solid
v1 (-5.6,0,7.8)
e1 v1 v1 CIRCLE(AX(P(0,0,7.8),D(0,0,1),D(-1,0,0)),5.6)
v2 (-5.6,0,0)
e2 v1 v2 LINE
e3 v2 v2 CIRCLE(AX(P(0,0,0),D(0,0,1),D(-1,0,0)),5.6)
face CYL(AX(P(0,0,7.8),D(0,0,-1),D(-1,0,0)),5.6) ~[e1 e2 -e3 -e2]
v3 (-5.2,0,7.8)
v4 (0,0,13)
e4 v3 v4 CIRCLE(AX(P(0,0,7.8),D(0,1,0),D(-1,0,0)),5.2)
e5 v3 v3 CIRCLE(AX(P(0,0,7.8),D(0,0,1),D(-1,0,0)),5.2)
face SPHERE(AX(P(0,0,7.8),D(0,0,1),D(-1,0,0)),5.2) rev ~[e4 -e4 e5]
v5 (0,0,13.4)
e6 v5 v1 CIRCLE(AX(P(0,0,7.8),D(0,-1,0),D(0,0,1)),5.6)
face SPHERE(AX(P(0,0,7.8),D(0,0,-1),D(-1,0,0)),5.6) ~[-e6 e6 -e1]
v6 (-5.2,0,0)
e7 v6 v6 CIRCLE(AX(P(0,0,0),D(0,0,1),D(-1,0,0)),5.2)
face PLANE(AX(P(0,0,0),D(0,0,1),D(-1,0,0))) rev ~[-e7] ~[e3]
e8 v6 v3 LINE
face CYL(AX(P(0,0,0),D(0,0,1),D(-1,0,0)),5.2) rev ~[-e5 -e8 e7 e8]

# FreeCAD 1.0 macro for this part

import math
import FreeCAD as App
import Part
import Sketcher

V = App.Vector
Q = App.Units.Quantity

doc = App.newDocument("Part")
body = doc.addObject("PartDesign::Body", "Body")

sketch1 = body.newObject("Sketcher::SketchObject", "Sketch")
sketch1.AttachmentSupport = (doc.getObject("XZ_Plane"), [""])
sketch1.MapMode = "FlatFace"
sketch1.addGeometry([
    Part.LineSegment(V(-5.6, 0, 0), V(-5.2, 0, 0)),
    Part.LineSegment(V(-5.2, 0, 0), V(-5.2, 7.8, 0)),
    Part.ArcOfCircle(Part.Circle(V(0, 7.8, 0), V(0, 0, 1), 5.2), math.radians(90), math.radians(180)),
    Part.LineSegment(V(0, 13, 0), V(0, 13.4, 0)),
    Part.ArcOfCircle(Part.Circle(V(0, 7.8, 0), V(0, 0, 1), 5.6), math.radians(90), math.radians(180)),
    Part.LineSegment(V(-5.6, 7.8, 0), V(-5.6, 0, 0)),
], False)
sketch1.addConstraint([
    Sketcher.Constraint("Coincident", 0, 2, 1, 1),
    Sketcher.Constraint("Tangent", 1, 2, 2, 2),
    Sketcher.Constraint("Coincident", 2, 1, 3, 1),
    Sketcher.Constraint("Coincident", 3, 2, 4, 1),
    Sketcher.Constraint("Tangent", 4, 2, 5, 1),
    Sketcher.Constraint("Coincident", 5, 2, 0, 1),
    Sketcher.Constraint("Horizontal", 0),
    Sketcher.Constraint("Vertical", 1),
    Sketcher.Constraint("Vertical", 3),
    Sketcher.Constraint("Vertical", 5),
    Sketcher.Constraint("Coincident", 4, 3, 2, 3),
    Sketcher.Constraint("PointOnObject", 2, 3, -2),
    Sketcher.Constraint("PointOnObject", 0, 2, -1),
    Sketcher.Constraint("PointOnObject", 2, 1, -2),
    Sketcher.Constraint("Radius", 2, Q("5.2 mm")),
    Sketcher.Constraint("Radius", 4, Q("5.6 mm")),
    Sketcher.Constraint("DistanceY", 1, 1, 1, 2, Q("7.8 mm")),
])
revolution = body.newObject("PartDesign::Revolution", "Revolution")
revolution.Profile = sketch1
revolution.ReferenceAxis = (sketch1, ["V_Axis"])
revolution.Angle = 360

doc.recompute()
